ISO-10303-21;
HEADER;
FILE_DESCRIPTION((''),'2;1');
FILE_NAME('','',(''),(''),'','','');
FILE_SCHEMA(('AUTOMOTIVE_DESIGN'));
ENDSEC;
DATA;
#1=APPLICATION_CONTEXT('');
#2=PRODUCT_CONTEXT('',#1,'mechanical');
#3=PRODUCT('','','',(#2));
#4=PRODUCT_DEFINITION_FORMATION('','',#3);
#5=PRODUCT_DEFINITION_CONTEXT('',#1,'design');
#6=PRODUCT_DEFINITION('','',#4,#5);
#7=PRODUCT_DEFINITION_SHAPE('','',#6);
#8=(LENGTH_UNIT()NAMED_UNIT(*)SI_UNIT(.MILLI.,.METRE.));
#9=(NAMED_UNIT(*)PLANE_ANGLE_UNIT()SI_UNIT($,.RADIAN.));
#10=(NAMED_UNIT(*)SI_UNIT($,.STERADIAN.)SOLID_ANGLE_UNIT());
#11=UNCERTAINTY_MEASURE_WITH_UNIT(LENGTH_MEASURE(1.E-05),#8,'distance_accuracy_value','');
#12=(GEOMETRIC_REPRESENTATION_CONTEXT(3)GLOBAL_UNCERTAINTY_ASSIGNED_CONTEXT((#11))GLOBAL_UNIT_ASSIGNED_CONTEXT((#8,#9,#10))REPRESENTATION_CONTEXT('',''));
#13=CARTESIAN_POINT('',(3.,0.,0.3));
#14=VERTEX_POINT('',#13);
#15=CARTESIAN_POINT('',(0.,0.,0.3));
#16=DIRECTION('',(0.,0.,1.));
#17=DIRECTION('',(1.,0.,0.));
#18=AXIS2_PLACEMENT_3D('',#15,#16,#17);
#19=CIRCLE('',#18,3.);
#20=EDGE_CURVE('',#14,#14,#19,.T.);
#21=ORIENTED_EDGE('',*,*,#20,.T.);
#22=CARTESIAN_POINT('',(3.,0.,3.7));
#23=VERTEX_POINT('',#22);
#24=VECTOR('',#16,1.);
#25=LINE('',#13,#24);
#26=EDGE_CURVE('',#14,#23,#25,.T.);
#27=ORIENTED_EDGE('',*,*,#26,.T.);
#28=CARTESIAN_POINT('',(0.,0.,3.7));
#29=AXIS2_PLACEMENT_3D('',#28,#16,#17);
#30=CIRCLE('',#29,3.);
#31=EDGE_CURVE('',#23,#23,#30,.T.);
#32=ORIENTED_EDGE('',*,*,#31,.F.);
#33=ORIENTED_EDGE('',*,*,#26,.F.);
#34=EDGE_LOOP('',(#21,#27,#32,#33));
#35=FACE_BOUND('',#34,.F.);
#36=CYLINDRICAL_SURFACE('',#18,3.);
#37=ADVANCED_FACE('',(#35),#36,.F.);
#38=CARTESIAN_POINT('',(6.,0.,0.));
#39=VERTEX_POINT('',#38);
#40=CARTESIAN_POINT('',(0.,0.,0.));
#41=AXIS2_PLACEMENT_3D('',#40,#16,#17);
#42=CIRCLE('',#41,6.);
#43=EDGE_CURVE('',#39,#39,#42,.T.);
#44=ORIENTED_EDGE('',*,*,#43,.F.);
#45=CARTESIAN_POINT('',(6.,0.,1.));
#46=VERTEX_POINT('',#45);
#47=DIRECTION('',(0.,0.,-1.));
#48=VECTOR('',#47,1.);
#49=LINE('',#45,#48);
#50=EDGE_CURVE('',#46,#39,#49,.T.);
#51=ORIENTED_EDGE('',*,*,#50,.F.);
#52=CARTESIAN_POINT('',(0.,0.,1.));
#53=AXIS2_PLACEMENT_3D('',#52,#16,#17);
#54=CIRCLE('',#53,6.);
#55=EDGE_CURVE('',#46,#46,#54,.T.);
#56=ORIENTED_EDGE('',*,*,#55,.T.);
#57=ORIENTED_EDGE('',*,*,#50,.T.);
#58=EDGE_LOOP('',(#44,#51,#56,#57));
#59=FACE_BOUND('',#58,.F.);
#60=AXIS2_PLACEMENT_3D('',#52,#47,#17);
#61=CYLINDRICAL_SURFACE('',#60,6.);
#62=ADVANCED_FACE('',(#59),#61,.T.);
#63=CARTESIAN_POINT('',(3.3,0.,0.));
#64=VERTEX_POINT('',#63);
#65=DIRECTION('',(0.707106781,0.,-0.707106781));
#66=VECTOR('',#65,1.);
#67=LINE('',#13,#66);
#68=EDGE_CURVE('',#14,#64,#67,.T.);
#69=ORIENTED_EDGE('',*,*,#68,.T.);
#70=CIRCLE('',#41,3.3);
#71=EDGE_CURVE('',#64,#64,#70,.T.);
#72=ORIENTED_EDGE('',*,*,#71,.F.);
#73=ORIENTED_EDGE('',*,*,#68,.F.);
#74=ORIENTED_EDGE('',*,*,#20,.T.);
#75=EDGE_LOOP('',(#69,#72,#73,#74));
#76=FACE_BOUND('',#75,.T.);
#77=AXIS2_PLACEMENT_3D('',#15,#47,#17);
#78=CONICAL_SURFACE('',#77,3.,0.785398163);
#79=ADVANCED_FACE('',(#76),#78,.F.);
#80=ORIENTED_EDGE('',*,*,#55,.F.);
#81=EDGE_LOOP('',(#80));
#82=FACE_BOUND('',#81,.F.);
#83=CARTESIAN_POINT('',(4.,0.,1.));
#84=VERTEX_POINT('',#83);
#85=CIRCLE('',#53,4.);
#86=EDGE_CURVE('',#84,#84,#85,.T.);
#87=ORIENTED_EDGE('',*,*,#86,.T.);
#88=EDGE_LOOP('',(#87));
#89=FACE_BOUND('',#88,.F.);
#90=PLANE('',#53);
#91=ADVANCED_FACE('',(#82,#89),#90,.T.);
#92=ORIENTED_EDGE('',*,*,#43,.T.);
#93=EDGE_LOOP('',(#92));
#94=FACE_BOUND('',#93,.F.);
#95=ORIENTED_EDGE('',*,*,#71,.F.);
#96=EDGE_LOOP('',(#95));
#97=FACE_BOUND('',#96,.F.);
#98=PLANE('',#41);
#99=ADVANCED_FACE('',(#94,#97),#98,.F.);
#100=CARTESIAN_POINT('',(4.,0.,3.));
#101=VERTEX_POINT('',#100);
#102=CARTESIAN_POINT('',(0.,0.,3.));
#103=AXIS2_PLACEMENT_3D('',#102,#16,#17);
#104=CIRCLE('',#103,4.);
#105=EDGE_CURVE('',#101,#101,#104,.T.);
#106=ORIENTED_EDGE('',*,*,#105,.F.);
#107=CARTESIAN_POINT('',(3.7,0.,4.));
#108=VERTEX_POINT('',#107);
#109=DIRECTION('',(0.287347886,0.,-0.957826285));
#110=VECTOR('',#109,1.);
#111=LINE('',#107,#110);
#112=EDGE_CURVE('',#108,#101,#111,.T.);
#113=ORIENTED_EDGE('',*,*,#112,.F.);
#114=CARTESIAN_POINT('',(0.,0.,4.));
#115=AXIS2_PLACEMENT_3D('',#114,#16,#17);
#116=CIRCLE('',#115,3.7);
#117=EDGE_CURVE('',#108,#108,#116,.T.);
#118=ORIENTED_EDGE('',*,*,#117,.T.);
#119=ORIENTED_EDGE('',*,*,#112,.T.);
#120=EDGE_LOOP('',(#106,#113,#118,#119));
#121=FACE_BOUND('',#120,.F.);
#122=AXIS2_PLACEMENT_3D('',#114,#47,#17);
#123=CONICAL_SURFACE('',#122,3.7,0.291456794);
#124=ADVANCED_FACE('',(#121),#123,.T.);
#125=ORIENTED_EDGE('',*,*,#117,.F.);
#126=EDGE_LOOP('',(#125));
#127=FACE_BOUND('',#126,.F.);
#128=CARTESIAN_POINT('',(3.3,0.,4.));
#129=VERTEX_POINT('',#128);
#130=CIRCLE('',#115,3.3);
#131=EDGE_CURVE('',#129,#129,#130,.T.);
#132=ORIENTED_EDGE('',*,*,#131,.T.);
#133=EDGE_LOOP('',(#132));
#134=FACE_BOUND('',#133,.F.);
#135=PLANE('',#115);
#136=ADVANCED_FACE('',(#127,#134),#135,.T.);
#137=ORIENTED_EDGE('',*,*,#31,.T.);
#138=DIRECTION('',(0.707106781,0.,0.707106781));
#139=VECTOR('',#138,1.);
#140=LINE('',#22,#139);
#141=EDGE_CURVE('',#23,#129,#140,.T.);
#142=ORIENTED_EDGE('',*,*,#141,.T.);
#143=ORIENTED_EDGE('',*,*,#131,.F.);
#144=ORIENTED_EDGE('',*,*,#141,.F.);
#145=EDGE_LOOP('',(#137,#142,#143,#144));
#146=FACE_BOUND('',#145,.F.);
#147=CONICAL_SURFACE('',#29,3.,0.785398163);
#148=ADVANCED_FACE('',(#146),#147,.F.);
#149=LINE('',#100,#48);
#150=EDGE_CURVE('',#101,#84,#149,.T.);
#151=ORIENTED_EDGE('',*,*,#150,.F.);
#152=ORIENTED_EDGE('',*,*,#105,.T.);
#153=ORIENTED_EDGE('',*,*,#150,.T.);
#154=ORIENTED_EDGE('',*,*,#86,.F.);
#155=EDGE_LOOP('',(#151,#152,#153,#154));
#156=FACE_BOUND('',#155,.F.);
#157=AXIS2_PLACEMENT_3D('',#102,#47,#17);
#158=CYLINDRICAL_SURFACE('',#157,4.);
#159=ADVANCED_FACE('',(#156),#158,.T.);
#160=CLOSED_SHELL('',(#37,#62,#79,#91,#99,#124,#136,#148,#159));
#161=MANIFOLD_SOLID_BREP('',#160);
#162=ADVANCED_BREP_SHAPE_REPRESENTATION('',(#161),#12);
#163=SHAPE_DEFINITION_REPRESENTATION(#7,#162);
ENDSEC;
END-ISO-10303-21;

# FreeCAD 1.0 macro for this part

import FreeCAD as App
import Part
import Sketcher
from FreeCAD import Vector

doc = App.newDocument("Part")
params = doc.addObject("Spreadsheet::Sheet", "Params")
for row, (alias, value) in enumerate([
    ("sketch1_height", "1 mm"),
    ("revolution_angle", "360 deg"),
], start=1):
    params.set(f"A{row}", alias)
    params.set(f"B{row}", "=" + value)
    params.setAlias(f"B{row}", alias)

body = doc.addObject("PartDesign::Body", "Body")

# Sketch on XZ plane
sketch1 = body.newObject("Sketcher::SketchObject", "Sketch")
sketch1.AttachmentSupport = (doc.getObject("XZ_Plane"), [""])
sketch1.MapMode = "FlatFace"
sketch1.addGeometry([
    Part.LineSegment(Vector(3.3, 0, 0), Vector(3, 0.3, 0)),  # 0
    Part.LineSegment(Vector(3, 0.3, 0), Vector(3, 3.7, 0)),  # 1
    Part.LineSegment(Vector(3, 3.7, 0), Vector(3.3, 4, 0)),  # 2
    Part.LineSegment(Vector(3.3, 4, 0), Vector(3.7, 4, 0)),  # 3
    Part.LineSegment(Vector(3.7, 4, 0), Vector(4, 3, 0)),  # 4
    Part.LineSegment(Vector(4, 3, 0), Vector(4, 1, 0)),  # 5
    Part.LineSegment(Vector(4, 1, 0), Vector(6, 1, 0)),  # 6
    Part.LineSegment(Vector(6, 1, 0), Vector(6, 0, 0)),  # 7
    Part.LineSegment(Vector(6, 0, 0), Vector(3.3, 0, 0)),  # 8
], False)
sketch1.addConstraint([
    Sketcher.Constraint("Coincident", 0, 2, 1, 1),
    Sketcher.Constraint("Coincident", 1, 2, 2, 1),
    Sketcher.Constraint("Coincident", 2, 2, 3, 1),
    Sketcher.Constraint("Coincident", 3, 2, 4, 1),
    Sketcher.Constraint("Coincident", 4, 2, 5, 1),
    Sketcher.Constraint("Coincident", 5, 2, 6, 1),
    Sketcher.Constraint("Coincident", 6, 2, 7, 1),
    Sketcher.Constraint("Coincident", 7, 2, 8, 1),
    Sketcher.Constraint("Coincident", 8, 2, 0, 1),
    Sketcher.Constraint("Vertical", 1),
    Sketcher.Constraint("Horizontal", 3),
    Sketcher.Constraint("Vertical", 5),
    Sketcher.Constraint("Horizontal", 6),
    Sketcher.Constraint("Vertical", 7),
    Sketcher.Constraint("Horizontal", 8),
    Sketcher.Constraint("PointOnObject", 7, 2, -1),
    Sketcher.Constraint("Perpendicular", 0, 2),
    Sketcher.Constraint("Vertical", 2, 2, 8, 2),
    Sketcher.Constraint("Equal", 6, 5),
    Sketcher.Constraint("Equal", 0, 2),
    Sketcher.Constraint("DistanceY", 7, 2, 7, 1, 1.0),
    Sketcher.Constraint("DistanceY", -1, 1, 2, 2, 4.0),
    Sketcher.Constraint("DistanceX", -1, 1, 4, 2, 4.0),
    Sketcher.Constraint("DistanceX", -1, 1, 6, 2, 6.0),
    Sketcher.Constraint("DistanceX", 1, 2, 4, 2, 1.0),
    Sketcher.Constraint("DistanceY", -1, 1, 0, 2, 0.3),
    Sketcher.Constraint("DistanceX", 3, 2, 4, 2, 0.3),
])
sketch1.setExpression("Constraints[20]", "Params.sketch1_height")
revolution = body.newObject("PartDesign::Revolution", "Revolution")
revolution.Profile = sketch1
revolution.ReferenceAxis = (sketch1, ["V_Axis"])
revolution.setExpression("Angle", "Params.revolution_angle")

doc.recompute()
